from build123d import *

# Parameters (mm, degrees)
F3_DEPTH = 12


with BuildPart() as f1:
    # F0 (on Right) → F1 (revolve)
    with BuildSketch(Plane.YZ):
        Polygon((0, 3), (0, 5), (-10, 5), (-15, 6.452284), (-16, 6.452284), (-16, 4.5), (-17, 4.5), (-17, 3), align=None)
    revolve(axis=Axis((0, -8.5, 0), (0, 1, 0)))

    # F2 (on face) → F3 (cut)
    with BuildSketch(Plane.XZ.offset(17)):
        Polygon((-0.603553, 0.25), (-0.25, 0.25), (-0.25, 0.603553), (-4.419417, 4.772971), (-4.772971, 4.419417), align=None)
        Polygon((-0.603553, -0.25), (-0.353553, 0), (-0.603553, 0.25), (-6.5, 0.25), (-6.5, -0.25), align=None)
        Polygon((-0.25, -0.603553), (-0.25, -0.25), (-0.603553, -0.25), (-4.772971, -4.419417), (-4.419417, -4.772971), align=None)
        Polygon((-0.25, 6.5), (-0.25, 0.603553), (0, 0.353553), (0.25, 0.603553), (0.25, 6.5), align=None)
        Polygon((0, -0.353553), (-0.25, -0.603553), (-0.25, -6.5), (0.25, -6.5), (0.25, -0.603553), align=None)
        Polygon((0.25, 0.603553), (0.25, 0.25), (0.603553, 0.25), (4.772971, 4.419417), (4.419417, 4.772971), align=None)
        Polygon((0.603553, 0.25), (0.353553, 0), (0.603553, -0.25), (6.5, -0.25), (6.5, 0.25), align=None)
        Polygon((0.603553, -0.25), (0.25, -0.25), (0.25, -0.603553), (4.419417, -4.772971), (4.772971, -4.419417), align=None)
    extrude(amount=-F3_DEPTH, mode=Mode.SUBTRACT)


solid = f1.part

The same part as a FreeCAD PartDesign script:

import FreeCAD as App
import Part
import Sketcher
from FreeCAD import Vector
Q = App.Units.Quantity

doc = App.newDocument("Part")
body = doc.addObject("PartDesign::Body", "Body")

sketch1 = body.newObject("Sketcher::SketchObject", "Sketch")
sketch1.AttachmentSupport = (doc.getObject("YZ_Plane"), [""])
sketch1.MapMode = "FlatFace"
sketch1.addGeometry([
    Part.LineSegment(Vector(0, 3, 0), Vector(0, 5, 0)),
    Part.LineSegment(Vector(0, 5, 0), Vector(-10, 5, 0)),
    Part.LineSegment(Vector(-10, 5, 0), Vector(-15, 6.5, 0)),
    Part.LineSegment(Vector(-15, 6.5, 0), Vector(-16, 6.5, 0)),
    Part.LineSegment(Vector(-16, 6.5, 0), Vector(-16, 4.5, 0)),
    Part.LineSegment(Vector(-16, 4.5, 0), Vector(-17, 4.5, 0)),
    Part.LineSegment(Vector(-17, 4.5, 0), Vector(-17, 3, 0)),
    Part.LineSegment(Vector(-17, 3, 0), Vector(0, 3, 0)),
], False)
sketch1.addConstraint([
    Sketcher.Constraint("Coincident", 0, 2, 1, 1),
    Sketcher.Constraint("Coincident", 1, 2, 2, 1),
    Sketcher.Constraint("Coincident", 2, 2, 3, 1),
    Sketcher.Constraint("Coincident", 3, 2, 4, 1),
    Sketcher.Constraint("Coincident", 4, 2, 5, 1),
    Sketcher.Constraint("Coincident", 5, 2, 6, 1),
    Sketcher.Constraint("Coincident", 6, 2, 7, 1),
    Sketcher.Constraint("Coincident", 7, 2, 0, 1),
    Sketcher.Constraint("Vertical", 0),
    Sketcher.Constraint("Horizontal", 1),
    Sketcher.Constraint("Horizontal", 3),
    Sketcher.Constraint("Vertical", 4),
    Sketcher.Constraint("Horizontal", 5),
    Sketcher.Constraint("Vertical", 6),
    Sketcher.Constraint("Horizontal", 7),
    Sketcher.Constraint("PointOnObject", 0, 2, -2),
    Sketcher.Constraint("Equal", 3, 5),
    Sketcher.Constraint("DistanceX", 1, 2, 1, 1, Q("10 mm")),
    Sketcher.Constraint("DistanceX", 3, 2, 3, 1, Q("1 mm")),
    Sketcher.Constraint("DistanceX", 7, 1, 7, 2, Q("17 mm")),
    Sketcher.Constraint("DistanceY", 0, 1, 0, 2, Q("2 mm")),
    Sketcher.Constraint("DistanceY", 6, 2, 6, 1, Q("1.5 mm")),
    Sketcher.Constraint("DistanceY", -1, 1, 0, 2, Q("5 mm")),
    Sketcher.Constraint("DistanceY", 4, 2, 4, 1, Q("1.952284 mm")),
])
revolution = body.newObject("PartDesign::Revolution", "Revolution")
revolution.Profile = sketch1
revolution.ReferenceAxis = (sketch1, ["H_Axis"])
revolution.Angle = 360

sketch2 = body.newObject("Sketcher::SketchObject", "Sketch001")
sketch2.AttachmentSupport = (doc.getObject("XZ_Plane"), [""])
sketch2.MapMode = "FlatFace"
sketch2.AttachmentOffset = App.Placement(Vector(0, 0, 17), App.Rotation())
sketch2.addGeometry([
    Part.LineSegment(Vector(-0.6, 0.25, 0), Vector(-0.25, 0.25, 0)),
    Part.LineSegment(Vector(-0.25, 0.25, 0), Vector(-0.25, 0.6, 0)),
    Part.LineSegment(Vector(-0.25, 0.6, 0), Vector(-4.42, 4.77, 0)),
    Part.LineSegment(Vector(-4.42, 4.77, 0), Vector(-4.77, 4.42, 0)),
    Part.LineSegment(Vector(-4.77, 4.42, 0), Vector(-0.6, 0.25, 0)),
    Part.LineSegment(Vector(-0.6, -0.25, 0), Vector(-0.35, 0, 0)),
    Part.LineSegment(Vector(-0.35, 0, 0), Vector(-0.6, 0.25, 0)),
    Part.LineSegment(Vector(-0.6, 0.25, 0), Vector(-6.5, 0.25, 0)),
    Part.LineSegment(Vector(-6.5, 0.25, 0), Vector(-6.5, -0.25, 0)),
    Part.LineSegment(Vector(-6.5, -0.25, 0), Vector(-0.6, -0.25, 0)),
    Part.LineSegment(Vector(-0.25, -0.6, 0), Vector(-0.25, -0.25, 0)),
    Part.LineSegment(Vector(-0.25, -0.25, 0), Vector(-0.6, -0.25, 0)),
    Part.LineSegment(Vector(-0.6, -0.25, 0), Vector(-4.77, -4.42, 0)),
    Part.LineSegment(Vector(-4.77, -4.42, 0), Vector(-4.42, -4.77, 0)),
    Part.LineSegment(Vector(-4.42, -4.77, 0), Vector(-0.25, -0.6, 0)),
    Part.LineSegment(Vector(-0.25, 6.5, 0), Vector(-0.25, 0.6, 0)),
    Part.LineSegment(Vector(-0.25, 0.6, 0), Vector(0, 0.35, 0)),
    Part.LineSegment(Vector(0, 0.35, 0), Vector(0.25, 0.6, 0)),
    Part.LineSegment(Vector(0.25, 0.6, 0), Vector(0.25, 6.5, 0)),
    Part.LineSegment(Vector(0.25, 6.5, 0), Vector(-0.25, 6.5, 0)),
    Part.LineSegment(Vector(0, -0.35, 0), Vector(-0.25, -0.6, 0)),
    Part.LineSegment(Vector(-0.25, -0.6, 0), Vector(-0.25, -6.5, 0)),
    Part.LineSegment(Vector(-0.25, -6.5, 0), Vector(0.25, -6.5, 0)),
    Part.LineSegment(Vector(0.25, -6.5, 0), Vector(0.25, -0.6, 0)),
    Part.LineSegment(Vector(0.25, -0.6, 0), Vector(0, -0.35, 0)),
    Part.LineSegment(Vector(0.25, 0.6, 0), Vector(0.25, 0.25, 0)),
    Part.LineSegment(Vector(0.25, 0.25, 0), Vector(0.6, 0.25, 0)),
    Part.LineSegment(Vector(0.6, 0.25, 0), Vector(4.77, 4.42, 0)),
    Part.LineSegment(Vector(4.77, 4.42, 0), Vector(4.42, 4.77, 0)),
    Part.LineSegment(Vector(4.42, 4.77, 0), Vector(0.25, 0.6, 0)),
    Part.LineSegment(Vector(0.6, 0.25, 0), Vector(0.35, 0, 0)),
    Part.LineSegment(Vector(0.35, 0, 0), Vector(0.6, -0.25, 0)),
    Part.LineSegment(Vector(0.6, -0.25, 0), Vector(6.5, -0.25, 0)),
    Part.LineSegment(Vector(6.5, -0.25, 0), Vector(6.5, 0.25, 0)),
    Part.LineSegment(Vector(6.5, 0.25, 0), Vector(0.6, 0.25, 0)),
    Part.LineSegment(Vector(0.6, -0.25, 0), Vector(0.25, -0.25, 0)),
    Part.LineSegment(Vector(0.25, -0.25, 0), Vector(0.25, -0.6, 0)),
    Part.LineSegment(Vector(0.25, -0.6, 0), Vector(4.42, -4.77, 0)),
    Part.LineSegment(Vector(4.42, -4.77, 0), Vector(4.77, -4.42, 0)),
    Part.LineSegment(Vector(4.77, -4.42, 0), Vector(0.6, -0.25, 0)),
], False)
sketch2.addConstraint([
    Sketcher.Constraint("Coincident", 0, 2, 1, 1),
    Sketcher.Constraint("Coincident", 1, 2, 2, 1),
    Sketcher.Constraint("Coincident", 2, 2, 3, 1),
    Sketcher.Constraint("Coincident", 3, 2, 4, 1),
    Sketcher.Constraint("Coincident", 4, 2, 0, 1),
    Sketcher.Constraint("Coincident", 5, 2, 6, 1),
    Sketcher.Constraint("Coincident", 6, 2, 7, 1),
    Sketcher.Constraint("Coincident", 7, 2, 8, 1),
    Sketcher.Constraint("Coincident", 8, 2, 9, 1),
    Sketcher.Constraint("Coincident", 9, 2, 5, 1),
    Sketcher.Constraint("Coincident", 10, 2, 11, 1),
    Sketcher.Constraint("Coincident", 11, 2, 12, 1),
    Sketcher.Constraint("Coincident", 12, 2, 13, 1),
    Sketcher.Constraint("Coincident", 13, 2, 14, 1),
    Sketcher.Constraint("Coincident", 14, 2, 10, 1),
    Sketcher.Constraint("Coincident", 15, 2, 16, 1),
    Sketcher.Constraint("Coincident", 16, 2, 17, 1),
    Sketcher.Constraint("Coincident", 17, 2, 18, 1),
    Sketcher.Constraint("Coincident", 18, 2, 19, 1),
    Sketcher.Constraint("Coincident", 19, 2, 15, 1),
    Sketcher.Constraint("Coincident", 20, 2, 21, 1),
    Sketcher.Constraint("Coincident", 21, 2, 22, 1),
    Sketcher.Constraint("Coincident", 22, 2, 23, 1),
    Sketcher.Constraint("Coincident", 23, 2, 24, 1),
    Sketcher.Constraint("Coincident", 24, 2, 20, 1),
    Sketcher.Constraint("Coincident", 25, 2, 26, 1),
    Sketcher.Constraint("Coincident", 26, 2, 27, 1),
    Sketcher.Constraint("Coincident", 27, 2, 28, 1),
    Sketcher.Constraint("Coincident", 28, 2, 29, 1),
    Sketcher.Constraint("Coincident", 29, 2, 25, 1),
    Sketcher.Constraint("Coincident", 30, 2, 31, 1),
    Sketcher.Constraint("Coincident", 31, 2, 32, 1),
    Sketcher.Constraint("Coincident", 32, 2, 33, 1),
    Sketcher.Constraint("Coincident", 33, 2, 34, 1),
    Sketcher.Constraint("Coincident", 34, 2, 30, 1),
    Sketcher.Constraint("Coincident", 35, 2, 36, 1),
    Sketcher.Constraint("Coincident", 36, 2, 37, 1),
    Sketcher.Constraint("Coincident", 37, 2, 38, 1),
    Sketcher.Constraint("Coincident", 38, 2, 39, 1),
    Sketcher.Constraint("Coincident", 39, 2, 35, 1),
    Sketcher.Constraint("Horizontal", 0),
    Sketcher.Constraint("Vertical", 1),
    Sketcher.Constraint("Horizontal", 7),
    Sketcher.Constraint("Vertical", 8),
    Sketcher.Constraint("Horizontal", 9),
    Sketcher.Constraint("Vertical", 10),
    Sketcher.Constraint("Horizontal", 11),
    Sketcher.Constraint("Vertical", 15),
    Sketcher.Constraint("Vertical", 18),
    Sketcher.Constraint("Horizontal", 19),
    Sketcher.Constraint("Vertical", 21),
    Sketcher.Constraint("Horizontal", 22),
    Sketcher.Constraint("Vertical", 23),
    Sketcher.Constraint("Vertical", 25),
    Sketcher.Constraint("Horizontal", 26),
    Sketcher.Constraint("Horizontal", 32),
    Sketcher.Constraint("Vertical", 33),
    Sketcher.Constraint("Horizontal", 34),
    Sketcher.Constraint("Horizontal", 35),
    Sketcher.Constraint("Vertical", 36),
    Sketcher.Constraint("Coincident", 6, 2, 4, 2),
    Sketcher.Constraint("Coincident", 11, 2, 9, 2),
    Sketcher.Constraint("Coincident", 15, 2, 1, 2),
    Sketcher.Constraint("Coincident", 20, 2, 14, 2),
    Sketcher.Constraint("Coincident", 29, 2, 17, 2),
    Sketcher.Constraint("Coincident", 34, 2, 26, 2),
    Sketcher.Constraint("Coincident", 36, 2, 23, 2),
    Sketcher.Constraint("Coincident", 39, 2, 31, 2),
    Sketcher.Constraint("Symmetric", 14, 2, 17, 2, -1, 1),
    Sketcher.Constraint("Symmetric", 19, 2, 22, 2, -1, 1),
    Sketcher.Constraint("Symmetric", 16, 2, 24, 2, -1, 1),
    Sketcher.Constraint("Symmetric", 9, 2, 26, 2, -1, 1),
    Sketcher.Constraint("Symmetric", 12, 2, 27, 2, -1, 1),
    Sketcher.Constraint("Symmetric", 13, 2, 28, 2, -1, 1),
    Sketcher.Constraint("Symmetric", 5, 2, 30, 2, -1, 1),
    Sketcher.Constraint("Symmetric", 4, 2, 31, 2, -1, 1),
    Sketcher.Constraint("Symmetric", 2, 2, 37, 2, -1, 1),
    Sketcher.Constraint("Symmetric", 3, 2, 38, 2, -1, 1),
    Sketcher.Constraint("Symmetric", 1, 2, 17, 2, -2),
    Sketcher.Constraint("Symmetric", 4, 2, 26, 2, -2),
    Sketcher.Constraint("Symmetric", 3, 2, 27, 2, -2),
    Sketcher.Constraint("Symmetric", 2, 2, 28, 2, -2),
    Sketcher.Constraint("PointOnObject", 5, 2, -1),
    Sketcher.Constraint("PointOnObject", 16, 2, -2),
    Sketcher.Constraint("Perpendicular", 2, 3),
    Sketcher.Constraint("Perpendicular", 3, 4),
    Sketcher.Constraint("Perpendicular", 4, 5),
    Sketcher.Constraint("Perpendicular", 5, 6),
    Sketcher.Constraint("Perpendicular", 14, 16),
    Sketcher.Constraint("Perpendicular", 20, 24),
    Sketcher.Constraint("Equal", 9, 32),
    Sketcher.Constraint("Equal", 35, 1),
    Sketcher.Constraint("Equal", 22, 8),
    Sketcher.Constraint("Equal", 34, 15),
    Sketcher.Constraint("DistanceX", 19, 2, 19, 1, Q("0.5 mm")),
    Sketcher.Constraint("Distance", 3, Q("0.500001 mm")),
    Sketcher.Constraint("DistanceX", 7, 2, -1, 1, Q("6.5 mm")),
    Sketcher.Constraint("DistanceY", -1, 1, 2, 2, Q("4.772971 mm")),
])
pocket1 = body.newObject("PartDesign::Pocket", "Pocket")
pocket1.Profile = sketch2
pocket1.Length = 12

doc.recompute()
